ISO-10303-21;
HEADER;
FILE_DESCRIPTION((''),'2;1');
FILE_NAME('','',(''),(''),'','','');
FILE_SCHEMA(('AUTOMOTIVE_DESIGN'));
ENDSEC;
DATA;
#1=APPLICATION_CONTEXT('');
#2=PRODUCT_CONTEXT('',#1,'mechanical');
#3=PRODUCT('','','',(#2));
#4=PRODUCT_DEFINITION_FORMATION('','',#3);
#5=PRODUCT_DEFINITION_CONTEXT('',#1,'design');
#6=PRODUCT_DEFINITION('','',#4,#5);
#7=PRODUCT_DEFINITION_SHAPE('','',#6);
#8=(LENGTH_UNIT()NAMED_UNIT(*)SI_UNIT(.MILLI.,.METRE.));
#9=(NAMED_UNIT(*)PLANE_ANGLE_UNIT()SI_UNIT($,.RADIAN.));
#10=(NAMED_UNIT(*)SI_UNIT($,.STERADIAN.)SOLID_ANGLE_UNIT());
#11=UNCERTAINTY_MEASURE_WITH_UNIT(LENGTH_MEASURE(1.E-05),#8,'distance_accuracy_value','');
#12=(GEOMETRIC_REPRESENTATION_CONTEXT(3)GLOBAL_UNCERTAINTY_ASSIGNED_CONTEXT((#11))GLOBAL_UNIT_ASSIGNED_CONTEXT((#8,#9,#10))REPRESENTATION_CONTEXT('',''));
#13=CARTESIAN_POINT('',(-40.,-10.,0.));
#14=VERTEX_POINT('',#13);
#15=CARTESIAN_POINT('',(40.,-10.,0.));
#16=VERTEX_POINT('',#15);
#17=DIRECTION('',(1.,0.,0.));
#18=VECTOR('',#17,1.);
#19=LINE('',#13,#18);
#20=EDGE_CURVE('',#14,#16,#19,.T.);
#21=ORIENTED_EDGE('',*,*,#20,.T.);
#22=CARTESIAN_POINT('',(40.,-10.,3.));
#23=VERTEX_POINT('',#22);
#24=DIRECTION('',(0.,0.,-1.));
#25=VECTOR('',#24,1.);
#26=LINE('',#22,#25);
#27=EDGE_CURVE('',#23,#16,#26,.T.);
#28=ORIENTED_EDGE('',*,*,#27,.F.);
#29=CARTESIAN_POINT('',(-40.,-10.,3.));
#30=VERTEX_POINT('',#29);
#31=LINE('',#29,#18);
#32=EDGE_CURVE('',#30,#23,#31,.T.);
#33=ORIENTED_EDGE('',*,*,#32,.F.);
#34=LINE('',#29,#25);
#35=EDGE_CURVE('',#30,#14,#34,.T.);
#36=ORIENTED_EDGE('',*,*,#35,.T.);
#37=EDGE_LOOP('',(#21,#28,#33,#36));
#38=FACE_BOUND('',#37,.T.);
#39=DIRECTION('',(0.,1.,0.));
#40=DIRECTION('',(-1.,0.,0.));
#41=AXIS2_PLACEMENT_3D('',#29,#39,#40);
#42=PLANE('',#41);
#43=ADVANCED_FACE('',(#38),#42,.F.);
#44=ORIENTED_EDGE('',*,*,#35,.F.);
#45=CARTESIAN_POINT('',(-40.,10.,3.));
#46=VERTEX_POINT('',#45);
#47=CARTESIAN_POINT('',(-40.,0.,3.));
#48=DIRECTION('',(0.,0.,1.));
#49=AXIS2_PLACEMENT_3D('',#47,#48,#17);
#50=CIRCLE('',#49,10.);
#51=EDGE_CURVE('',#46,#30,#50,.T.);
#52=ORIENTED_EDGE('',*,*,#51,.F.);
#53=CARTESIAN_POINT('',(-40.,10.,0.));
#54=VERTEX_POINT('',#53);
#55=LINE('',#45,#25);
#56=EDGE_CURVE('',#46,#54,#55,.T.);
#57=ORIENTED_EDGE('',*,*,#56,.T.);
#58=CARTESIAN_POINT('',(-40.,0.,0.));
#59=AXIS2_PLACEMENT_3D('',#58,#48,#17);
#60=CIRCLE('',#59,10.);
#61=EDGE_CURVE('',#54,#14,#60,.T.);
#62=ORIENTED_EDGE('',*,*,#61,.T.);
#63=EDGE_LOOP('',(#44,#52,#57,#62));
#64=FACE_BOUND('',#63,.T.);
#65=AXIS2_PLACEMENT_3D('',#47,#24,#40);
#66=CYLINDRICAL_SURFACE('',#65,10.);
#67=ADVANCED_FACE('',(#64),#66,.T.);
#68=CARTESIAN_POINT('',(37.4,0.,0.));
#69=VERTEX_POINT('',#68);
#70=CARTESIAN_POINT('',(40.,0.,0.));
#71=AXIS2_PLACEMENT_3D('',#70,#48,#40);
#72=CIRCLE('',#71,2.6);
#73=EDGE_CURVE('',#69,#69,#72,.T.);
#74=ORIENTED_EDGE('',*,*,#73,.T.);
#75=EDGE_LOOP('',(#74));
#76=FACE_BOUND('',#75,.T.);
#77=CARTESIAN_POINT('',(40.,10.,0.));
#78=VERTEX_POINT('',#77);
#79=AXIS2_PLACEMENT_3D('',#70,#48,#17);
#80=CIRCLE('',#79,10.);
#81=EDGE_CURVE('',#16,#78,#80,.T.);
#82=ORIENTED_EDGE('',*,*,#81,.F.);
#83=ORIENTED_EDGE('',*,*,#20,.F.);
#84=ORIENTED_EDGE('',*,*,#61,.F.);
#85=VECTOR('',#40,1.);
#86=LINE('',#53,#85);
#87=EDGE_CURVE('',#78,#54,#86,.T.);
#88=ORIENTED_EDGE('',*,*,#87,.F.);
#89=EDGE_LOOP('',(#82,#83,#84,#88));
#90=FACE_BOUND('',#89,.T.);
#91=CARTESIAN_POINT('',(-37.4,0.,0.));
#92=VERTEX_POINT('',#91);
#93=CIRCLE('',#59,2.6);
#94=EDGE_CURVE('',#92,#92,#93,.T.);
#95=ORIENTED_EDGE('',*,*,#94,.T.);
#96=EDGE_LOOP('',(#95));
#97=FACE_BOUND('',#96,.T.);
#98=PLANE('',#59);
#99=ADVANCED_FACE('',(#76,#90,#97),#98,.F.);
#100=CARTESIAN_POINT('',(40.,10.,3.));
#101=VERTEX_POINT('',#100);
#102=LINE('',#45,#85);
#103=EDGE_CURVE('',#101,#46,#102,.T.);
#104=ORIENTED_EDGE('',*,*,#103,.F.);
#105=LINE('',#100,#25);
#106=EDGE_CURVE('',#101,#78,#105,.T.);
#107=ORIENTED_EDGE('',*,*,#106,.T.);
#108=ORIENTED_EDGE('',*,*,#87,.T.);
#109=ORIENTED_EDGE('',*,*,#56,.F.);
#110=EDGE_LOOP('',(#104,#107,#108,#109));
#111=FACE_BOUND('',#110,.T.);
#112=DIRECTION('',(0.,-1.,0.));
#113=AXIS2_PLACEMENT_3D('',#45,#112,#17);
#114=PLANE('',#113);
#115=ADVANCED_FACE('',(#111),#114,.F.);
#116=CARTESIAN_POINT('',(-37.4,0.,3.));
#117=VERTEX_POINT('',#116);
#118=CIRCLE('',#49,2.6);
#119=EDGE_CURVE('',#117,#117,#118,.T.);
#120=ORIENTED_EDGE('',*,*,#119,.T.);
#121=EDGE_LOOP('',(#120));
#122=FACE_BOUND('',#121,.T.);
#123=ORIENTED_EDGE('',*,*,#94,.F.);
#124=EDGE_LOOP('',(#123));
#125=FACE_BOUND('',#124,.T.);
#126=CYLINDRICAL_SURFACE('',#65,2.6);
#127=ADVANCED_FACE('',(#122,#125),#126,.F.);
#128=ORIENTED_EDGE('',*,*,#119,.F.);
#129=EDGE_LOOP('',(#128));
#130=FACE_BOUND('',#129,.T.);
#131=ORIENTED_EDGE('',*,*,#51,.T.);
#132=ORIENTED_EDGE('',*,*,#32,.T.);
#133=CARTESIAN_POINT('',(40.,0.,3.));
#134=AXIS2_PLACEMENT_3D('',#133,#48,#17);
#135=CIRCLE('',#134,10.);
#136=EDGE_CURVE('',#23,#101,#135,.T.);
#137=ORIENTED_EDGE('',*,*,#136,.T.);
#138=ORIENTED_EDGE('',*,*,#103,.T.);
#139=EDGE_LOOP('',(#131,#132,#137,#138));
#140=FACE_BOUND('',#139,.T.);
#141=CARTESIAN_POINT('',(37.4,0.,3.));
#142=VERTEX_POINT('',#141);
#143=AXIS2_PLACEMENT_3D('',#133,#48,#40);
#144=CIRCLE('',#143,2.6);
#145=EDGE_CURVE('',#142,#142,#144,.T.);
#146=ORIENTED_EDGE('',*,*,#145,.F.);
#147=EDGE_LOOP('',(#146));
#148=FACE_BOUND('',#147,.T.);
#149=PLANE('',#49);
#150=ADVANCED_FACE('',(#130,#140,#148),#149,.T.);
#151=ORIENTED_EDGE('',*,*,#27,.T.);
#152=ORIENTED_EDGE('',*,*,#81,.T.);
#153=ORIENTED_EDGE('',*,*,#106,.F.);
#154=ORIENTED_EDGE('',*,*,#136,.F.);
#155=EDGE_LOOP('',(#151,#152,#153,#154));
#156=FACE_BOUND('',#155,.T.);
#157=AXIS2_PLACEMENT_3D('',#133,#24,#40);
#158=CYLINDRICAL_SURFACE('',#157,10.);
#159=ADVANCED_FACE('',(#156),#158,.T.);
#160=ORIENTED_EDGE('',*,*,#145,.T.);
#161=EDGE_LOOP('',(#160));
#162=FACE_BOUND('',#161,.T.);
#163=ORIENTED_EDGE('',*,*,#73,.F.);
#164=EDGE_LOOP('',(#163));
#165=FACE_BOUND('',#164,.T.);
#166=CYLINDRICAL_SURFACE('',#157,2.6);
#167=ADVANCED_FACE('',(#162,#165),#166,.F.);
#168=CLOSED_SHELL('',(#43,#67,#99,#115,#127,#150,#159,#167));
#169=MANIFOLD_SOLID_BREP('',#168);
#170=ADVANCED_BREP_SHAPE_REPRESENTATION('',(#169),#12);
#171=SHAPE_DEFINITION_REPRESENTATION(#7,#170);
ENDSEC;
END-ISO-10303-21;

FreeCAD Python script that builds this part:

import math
import FreeCAD as App
import Part
import Sketcher
from FreeCAD import Vector
Q = App.Units.Quantity

doc = App.newDocument("Part")
params = doc.addObject("Spreadsheet::Sheet", "Params")
for row, (alias, value) in enumerate([
    ("sketch1_radius", "10 mm"),
    ("sketch1_diameter", "5.2 mm"),
    ("sketch1_width", "80 mm"),
    ("pad1_length", "3 mm"),
], start=1):
    params.set(f"A{row}", alias)
    params.set(f"B{row}", "=" + value)
    params.setAlias(f"B{row}", alias)

body = doc.addObject("PartDesign::Body", "Body")

sketch1 = body.newObject("Sketcher::SketchObject", "Sketch")
sketch1.AttachmentSupport = (doc.getObject("XY_Plane"), [""])
sketch1.MapMode = "FlatFace"
sketch1.addGeometry(Part.LineSegment(Vector(40, 10, 0), Vector(-40, 10, 0)), False)
sketch1.addGeometry(Part.ArcOfCircle(Part.Circle(Vector(-40, 0, 0), Vector(0, 0, 1), 10), math.radians(90), math.radians(270)), False)
sketch1.addGeometry(Part.LineSegment(Vector(-40, -10, 0), Vector(40, -10, 0)), False)
sketch1.addGeometry(Part.ArcOfCircle(Part.Circle(Vector(40, 0, 0), Vector(0, 0, 1), 10), math.radians(-90), math.radians(90)), False)
sketch1.addGeometry(Part.Circle(Vector(40, 0, 0), Vector(0, 0, 1), 2.6), False)
sketch1.addGeometry(Part.Circle(Vector(-40, 0, 0), Vector(0, 0, 1), 2.6), False)
sketch1.addConstraint(Sketcher.Constraint("Tangent", 0, 2, 1, 1))
sketch1.addConstraint(Sketcher.Constraint("Tangent", 1, 2, 2, 1))
sketch1.addConstraint(Sketcher.Constraint("Tangent", 2, 2, 3, 1))
sketch1.addConstraint(Sketcher.Constraint("Tangent", 3, 2, 0, 1))
sketch1.addConstraint(Sketcher.Constraint("Horizontal", 0))
sketch1.addConstraint(Sketcher.Constraint("Horizontal", 2))
sketch1.addConstraint(Sketcher.Constraint("Coincident", 4, 3, 3, 3))
sketch1.addConstraint(Sketcher.Constraint("Coincident", 5, 3, 1, 3))
sketch1.addConstraint(Sketcher.Constraint("Equal", 4, 5))
sketch1.addConstraint(Sketcher.Constraint("Symmetric", 1, 3, 3, 3, -1, 1))
sketch1.addConstraint(Sketcher.Constraint("Radius", 1, Q("10 mm")))
sketch1.addConstraint(Sketcher.Constraint("Diameter", 4, Q("5.2 mm")))
sketch1.addConstraint(Sketcher.Constraint("DistanceX", 0, 2, 0, 1, Q("80 mm")))
sketch1.setExpression("Constraints[10]", "Params.sketch1_radius")
sketch1.setExpression("Constraints[11]", "Params.sketch1_diameter")
sketch1.setExpression("Constraints[12]", "Params.sketch1_width")
pad1 = body.newObject("PartDesign::Pad", "Pad")
pad1.Profile = sketch1
pad1.setExpression("Length", "Params.pad1_length")

doc.recompute()
